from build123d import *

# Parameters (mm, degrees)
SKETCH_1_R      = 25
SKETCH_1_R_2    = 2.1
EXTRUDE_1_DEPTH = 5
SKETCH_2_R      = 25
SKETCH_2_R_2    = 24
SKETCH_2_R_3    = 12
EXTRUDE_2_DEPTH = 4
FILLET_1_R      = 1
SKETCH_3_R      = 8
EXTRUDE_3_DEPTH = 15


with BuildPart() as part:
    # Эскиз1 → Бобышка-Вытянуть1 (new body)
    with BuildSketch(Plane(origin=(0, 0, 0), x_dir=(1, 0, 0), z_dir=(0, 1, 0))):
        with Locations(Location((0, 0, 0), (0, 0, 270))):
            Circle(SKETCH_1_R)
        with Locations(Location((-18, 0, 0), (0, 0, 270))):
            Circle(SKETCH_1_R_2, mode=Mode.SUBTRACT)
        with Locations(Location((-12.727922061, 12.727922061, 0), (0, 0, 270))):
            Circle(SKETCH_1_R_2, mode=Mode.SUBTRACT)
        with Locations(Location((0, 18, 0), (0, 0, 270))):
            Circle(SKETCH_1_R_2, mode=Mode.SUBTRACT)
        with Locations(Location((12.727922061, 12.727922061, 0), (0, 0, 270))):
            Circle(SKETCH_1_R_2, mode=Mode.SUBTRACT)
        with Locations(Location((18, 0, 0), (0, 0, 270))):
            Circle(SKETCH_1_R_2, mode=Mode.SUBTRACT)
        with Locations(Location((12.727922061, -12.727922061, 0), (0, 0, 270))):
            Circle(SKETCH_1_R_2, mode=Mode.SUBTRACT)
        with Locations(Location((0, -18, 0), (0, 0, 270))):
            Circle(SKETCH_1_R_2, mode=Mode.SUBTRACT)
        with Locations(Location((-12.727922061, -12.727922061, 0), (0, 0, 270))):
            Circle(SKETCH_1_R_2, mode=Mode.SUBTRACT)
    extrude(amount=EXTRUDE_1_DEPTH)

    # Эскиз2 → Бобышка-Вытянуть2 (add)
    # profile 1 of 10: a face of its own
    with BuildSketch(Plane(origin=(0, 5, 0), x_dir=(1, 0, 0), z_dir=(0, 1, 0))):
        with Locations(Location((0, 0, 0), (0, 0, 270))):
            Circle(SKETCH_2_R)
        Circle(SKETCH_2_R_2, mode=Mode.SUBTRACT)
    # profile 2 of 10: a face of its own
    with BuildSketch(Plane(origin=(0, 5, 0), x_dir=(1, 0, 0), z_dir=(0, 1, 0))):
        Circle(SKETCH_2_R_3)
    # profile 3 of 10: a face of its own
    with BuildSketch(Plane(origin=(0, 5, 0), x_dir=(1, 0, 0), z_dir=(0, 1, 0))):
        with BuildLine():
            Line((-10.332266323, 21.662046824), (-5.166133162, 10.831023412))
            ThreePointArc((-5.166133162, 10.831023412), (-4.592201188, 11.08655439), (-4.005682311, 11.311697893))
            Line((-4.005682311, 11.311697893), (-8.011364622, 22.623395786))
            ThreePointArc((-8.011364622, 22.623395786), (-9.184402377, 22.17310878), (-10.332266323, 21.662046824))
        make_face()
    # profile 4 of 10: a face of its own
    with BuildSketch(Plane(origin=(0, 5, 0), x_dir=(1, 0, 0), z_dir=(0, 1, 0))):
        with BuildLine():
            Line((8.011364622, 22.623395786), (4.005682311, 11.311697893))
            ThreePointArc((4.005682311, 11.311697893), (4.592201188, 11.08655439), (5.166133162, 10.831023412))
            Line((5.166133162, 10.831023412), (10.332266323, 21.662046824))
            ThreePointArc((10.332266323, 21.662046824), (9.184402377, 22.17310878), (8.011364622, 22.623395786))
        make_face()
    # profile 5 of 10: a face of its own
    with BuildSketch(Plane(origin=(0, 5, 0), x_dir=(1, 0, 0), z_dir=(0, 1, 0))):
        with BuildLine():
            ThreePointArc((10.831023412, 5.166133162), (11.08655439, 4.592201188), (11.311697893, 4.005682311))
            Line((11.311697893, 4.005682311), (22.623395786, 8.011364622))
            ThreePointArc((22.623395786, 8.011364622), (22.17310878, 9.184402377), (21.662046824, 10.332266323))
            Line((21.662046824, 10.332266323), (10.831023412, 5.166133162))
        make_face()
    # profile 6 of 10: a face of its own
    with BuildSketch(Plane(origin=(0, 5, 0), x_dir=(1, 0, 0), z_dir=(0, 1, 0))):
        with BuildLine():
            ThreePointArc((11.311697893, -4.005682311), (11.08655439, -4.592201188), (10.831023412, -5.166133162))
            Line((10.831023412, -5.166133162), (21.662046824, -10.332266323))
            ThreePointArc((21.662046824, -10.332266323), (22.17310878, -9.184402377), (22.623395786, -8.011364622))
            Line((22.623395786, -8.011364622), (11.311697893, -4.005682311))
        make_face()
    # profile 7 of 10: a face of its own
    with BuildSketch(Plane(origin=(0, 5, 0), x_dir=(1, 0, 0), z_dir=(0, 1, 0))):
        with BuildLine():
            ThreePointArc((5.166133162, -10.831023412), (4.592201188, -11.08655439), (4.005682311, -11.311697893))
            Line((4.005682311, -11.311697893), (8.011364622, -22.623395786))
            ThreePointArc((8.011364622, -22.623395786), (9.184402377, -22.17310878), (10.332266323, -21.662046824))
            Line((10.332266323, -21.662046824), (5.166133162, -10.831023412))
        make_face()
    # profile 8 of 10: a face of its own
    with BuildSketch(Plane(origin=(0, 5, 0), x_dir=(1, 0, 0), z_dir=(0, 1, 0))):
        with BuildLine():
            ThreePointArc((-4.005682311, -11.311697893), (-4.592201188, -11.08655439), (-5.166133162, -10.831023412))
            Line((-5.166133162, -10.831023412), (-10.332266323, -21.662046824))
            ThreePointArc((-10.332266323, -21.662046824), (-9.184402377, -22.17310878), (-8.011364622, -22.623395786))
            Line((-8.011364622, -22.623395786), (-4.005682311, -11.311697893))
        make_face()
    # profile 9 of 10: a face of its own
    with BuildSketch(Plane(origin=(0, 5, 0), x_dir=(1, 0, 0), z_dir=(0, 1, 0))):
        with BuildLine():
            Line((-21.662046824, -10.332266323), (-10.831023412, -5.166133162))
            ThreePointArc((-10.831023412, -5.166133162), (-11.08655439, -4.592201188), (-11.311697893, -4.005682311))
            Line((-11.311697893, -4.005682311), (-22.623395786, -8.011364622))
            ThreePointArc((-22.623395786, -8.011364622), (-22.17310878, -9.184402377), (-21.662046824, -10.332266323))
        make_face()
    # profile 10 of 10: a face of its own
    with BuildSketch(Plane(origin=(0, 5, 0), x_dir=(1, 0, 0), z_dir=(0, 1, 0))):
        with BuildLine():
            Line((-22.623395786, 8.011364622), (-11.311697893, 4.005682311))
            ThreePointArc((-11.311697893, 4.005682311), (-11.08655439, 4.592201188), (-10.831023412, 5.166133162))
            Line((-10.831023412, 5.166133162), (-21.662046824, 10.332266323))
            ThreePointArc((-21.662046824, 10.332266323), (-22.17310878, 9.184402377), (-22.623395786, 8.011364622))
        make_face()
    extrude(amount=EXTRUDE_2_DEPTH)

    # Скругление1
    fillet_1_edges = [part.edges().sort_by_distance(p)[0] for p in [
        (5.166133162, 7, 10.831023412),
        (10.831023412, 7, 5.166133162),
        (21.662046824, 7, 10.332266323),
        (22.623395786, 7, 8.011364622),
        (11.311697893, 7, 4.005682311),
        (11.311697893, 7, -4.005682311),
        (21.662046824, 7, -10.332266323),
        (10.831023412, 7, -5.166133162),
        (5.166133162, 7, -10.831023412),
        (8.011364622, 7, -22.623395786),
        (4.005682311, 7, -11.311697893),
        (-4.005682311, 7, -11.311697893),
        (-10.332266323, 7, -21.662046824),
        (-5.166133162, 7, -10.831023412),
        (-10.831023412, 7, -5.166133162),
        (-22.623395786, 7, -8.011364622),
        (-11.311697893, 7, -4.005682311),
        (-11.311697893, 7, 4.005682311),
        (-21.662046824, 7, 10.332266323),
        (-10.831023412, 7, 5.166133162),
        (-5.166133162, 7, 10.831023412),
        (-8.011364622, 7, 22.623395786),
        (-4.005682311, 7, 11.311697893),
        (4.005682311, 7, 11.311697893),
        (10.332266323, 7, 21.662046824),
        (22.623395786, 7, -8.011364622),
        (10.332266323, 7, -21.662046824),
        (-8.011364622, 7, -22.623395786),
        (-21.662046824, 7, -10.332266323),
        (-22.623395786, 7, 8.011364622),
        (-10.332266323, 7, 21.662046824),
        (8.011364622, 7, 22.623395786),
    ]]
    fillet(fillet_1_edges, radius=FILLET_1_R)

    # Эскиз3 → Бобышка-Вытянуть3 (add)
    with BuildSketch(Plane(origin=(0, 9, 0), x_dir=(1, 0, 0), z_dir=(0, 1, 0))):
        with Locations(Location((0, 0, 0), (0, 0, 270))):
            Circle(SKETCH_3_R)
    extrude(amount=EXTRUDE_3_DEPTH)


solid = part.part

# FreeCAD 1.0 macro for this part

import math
import FreeCAD as App
import Part
import Sketcher
Q = App.Units.Quantity


def edges_at(feature, points):
    """Names of the edges that pass closest to the given points."""
    edges = feature.Shape.Edges
    near = lambda p: min(range(len(edges)), key=lambda i: edges[i].distToShape(Part.Vertex(*p))[0])
    return sorted({f"Edge{near(p) + 1}" for p in points})

doc = App.newDocument("Part")
body = doc.addObject("PartDesign::Body", "Body")

sketch1 = doc.addObject("Sketcher::SketchObject", "Sketch")
body.addObject(sketch1)
sketch1.AttachmentSupport = (doc.XZ_Plane, [""])
sketch1.MapMode = "FlatFace"
sketch1.addGeometry(Part.Circle(App.Vector(0, 0, 0), App.Vector(0, 0, 1), 25), False)
sketch1.addGeometry(Part.Circle(App.Vector(-12.727922, -12.727922, 0), App.Vector(0, 0, 1), 2.1), False)
sketch1.addGeometry(Part.Circle(App.Vector(0, -18, 0), App.Vector(0, 0, 1), 2.1), False)
sketch1.addGeometry(Part.Circle(App.Vector(-18, 0, 0), App.Vector(0, 0, 1), 2.1), False)
sketch1.addGeometry(Part.Circle(App.Vector(-12.727922, 12.727922, 0), App.Vector(0, 0, 1), 2.1), False)
sketch1.addGeometry(Part.Circle(App.Vector(12.727922, -12.727922, 0), App.Vector(0, 0, 1), 2.1), False)
sketch1.addGeometry(Part.Circle(App.Vector(18, 0, 0), App.Vector(0, 0, 1), 2.1), False)
sketch1.addGeometry(Part.Circle(App.Vector(0, 18, 0), App.Vector(0, 0, 1), 2.1), False)
sketch1.addGeometry(Part.Circle(App.Vector(12.727922, 12.727922, 0), App.Vector(0, 0, 1), 2.1), False)
sketch1.addConstraint(Sketcher.Constraint("Coincident", 0, 3, -1, 1))
sketch1.addConstraint(Sketcher.Constraint("Equal", 1, 2))
sketch1.addConstraint(Sketcher.Constraint("Equal", 2, 3))
sketch1.addConstraint(Sketcher.Constraint("Equal", 3, 4))
sketch1.addConstraint(Sketcher.Constraint("Equal", 4, 5))
sketch1.addConstraint(Sketcher.Constraint("Equal", 5, 6))
sketch1.addConstraint(Sketcher.Constraint("Equal", 6, 7))
sketch1.addConstraint(Sketcher.Constraint("Equal", 7, 8))
sketch1.addConstraint(Sketcher.Constraint("Symmetric", 4, 3, 5, 3, -1, 1))
sketch1.addConstraint(Sketcher.Constraint("Symmetric", 3, 3, 6, 3, -1, 1))
sketch1.addConstraint(Sketcher.Constraint("Symmetric", 2, 3, 7, 3, -1, 1))
sketch1.addConstraint(Sketcher.Constraint("Symmetric", 1, 3, 8, 3, -1, 1))
sketch1.addConstraint(Sketcher.Constraint("Symmetric", 1, 3, 5, 3, -2))
sketch1.addConstraint(Sketcher.Constraint("PointOnObject", 2, 3, -2))
sketch1.addConstraint(Sketcher.Constraint("PointOnObject", 3, 3, -1))
sketch1.addConstraint(Sketcher.Constraint("Diameter", 0, Q("50 mm")))
sketch1.addConstraint(Sketcher.Constraint("Diameter", 1, Q("4.2 mm")))
sketch1.addConstraint(Sketcher.Constraint("DistanceY", 2, 3, -1, 1, Q("18 mm")))
sketch1.addConstraint(Sketcher.Constraint("DistanceX", 3, 3, -1, 1, Q("18 mm")))
sketch1.addConstraint(Sketcher.Constraint("DistanceX", 1, 3, -1, 1, Q("12.727922 mm")))
sketch1.addConstraint(Sketcher.Constraint("DistanceY", 1, 3, -1, 1, Q("12.727922 mm")))
pad1 = doc.addObject("PartDesign::Pad", "Pad")
body.addObject(pad1)
pad1.Profile = sketch1
pad1.Length = 5
pad1.Reversed = True

sketch2 = doc.addObject("Sketcher::SketchObject", "Sketch001")
body.addObject(sketch2)
sketch2.AttachmentSupport = (doc.XZ_Plane, [""])
sketch2.MapMode = "FlatFace"
sketch2.AttachmentOffset = App.Placement(App.Vector(0, 0, -5), App.Rotation())
sketch2.addGeometry(Part.Circle(App.Vector(0, 0, 0), App.Vector(0, 0, 1), 25), False)
sketch2.addGeometry(Part.ArcOfCircle(Part.Circle(App.Vector(0, 0, 0), App.Vector(0, 0, 1), 24), math.radians(-19.5), math.radians(19.5)), False)
sketch2.addGeometry(Part.LineSegment(App.Vector(22.623396, 8.011365, 0), App.Vector(11.311698, 4.005682, 0)), False)
sketch2.addGeometry(Part.ArcOfCircle(Part.Circle(App.Vector(0, 0, 0), App.Vector(0, 0, 1), 12), math.radians(-19.5), math.radians(19.5)), False)
sketch2.addGeometry(Part.LineSegment(App.Vector(11.311698, -4.005682, 0), App.Vector(22.623396, -8.011365, 0)), False)
sketch2.addGeometry(Part.ArcOfCircle(Part.Circle(App.Vector(0, 0, 0), App.Vector(0, 0, 1), 24), math.radians(-64.5), math.radians(-25.5)), False)
sketch2.addGeometry(Part.LineSegment(App.Vector(21.662047, -10.332266, 0), App.Vector(10.831023, -5.166133, 0)), False)
sketch2.addGeometry(Part.ArcOfCircle(Part.Circle(App.Vector(0, 0, 0), App.Vector(0, 0, 1), 12), math.radians(-64.5), math.radians(-25.5)), False)
sketch2.addGeometry(Part.LineSegment(App.Vector(5.166133, -10.831023, 0), App.Vector(10.332266, -21.662047, 0)), False)
sketch2.addGeometry(Part.ArcOfCircle(Part.Circle(App.Vector(0, 0, 0), App.Vector(0, 0, 1), 24), math.radians(-109.5), math.radians(-70.5)), False)
sketch2.addGeometry(Part.LineSegment(App.Vector(8.011365, -22.623396, 0), App.Vector(4.005682, -11.311698, 0)), False)
sketch2.addGeometry(Part.ArcOfCircle(Part.Circle(App.Vector(0, 0, 0), App.Vector(0, 0, 1), 12), math.radians(-109.5), math.radians(-70.5)), False)
sketch2.addGeometry(Part.LineSegment(App.Vector(-4.005682, -11.311698, 0), App.Vector(-8.011365, -22.623396, 0)), False)
sketch2.addGeometry(Part.ArcOfCircle(Part.Circle(App.Vector(0, 0, 0), App.Vector(0, 0, 1), 24), math.radians(-154.5), math.radians(-115.5)), False)
sketch2.addGeometry(Part.LineSegment(App.Vector(-10.332266, -21.662047, 0), App.Vector(-5.166133, -10.831023, 0)), False)
sketch2.addGeometry(Part.ArcOfCircle(Part.Circle(App.Vector(0, 0, 0), App.Vector(0, 0, 1), 12), math.radians(-154.5), math.radians(-115.5)), False)
sketch2.addGeometry(Part.LineSegment(App.Vector(-10.831023, -5.166133, 0), App.Vector(-21.662047, -10.332266, 0)), False)
sketch2.addGeometry(Part.ArcOfCircle(Part.Circle(App.Vector(0, 0, 0), App.Vector(0, 0, 1), 24), math.radians(160.5), math.radians(199.5)), False)
sketch2.addGeometry(Part.LineSegment(App.Vector(-22.623396, -8.011365, 0), App.Vector(-11.311698, -4.005682, 0)), False)
sketch2.addGeometry(Part.ArcOfCircle(Part.Circle(App.Vector(0, 0, 0), App.Vector(0, 0, 1), 12), math.radians(160.5), math.radians(199.5)), False)
sketch2.addGeometry(Part.LineSegment(App.Vector(-11.311698, 4.005682, 0), App.Vector(-22.623396, 8.011365, 0)), False)
sketch2.addGeometry(Part.ArcOfCircle(Part.Circle(App.Vector(0, 0, 0), App.Vector(0, 0, 1), 24), math.radians(115.5), math.radians(154.5)), False)
sketch2.addGeometry(Part.LineSegment(App.Vector(-21.662047, 10.332266, 0), App.Vector(-10.831023, 5.166133, 0)), False)
sketch2.addGeometry(Part.ArcOfCircle(Part.Circle(App.Vector(0, 0, 0), App.Vector(0, 0, 1), 12), math.radians(115.5), math.radians(154.5)), False)
sketch2.addGeometry(Part.LineSegment(App.Vector(-5.166133, 10.831023, 0), App.Vector(-10.332266, 21.662047, 0)), False)
sketch2.addGeometry(Part.ArcOfCircle(Part.Circle(App.Vector(0, 0, 0), App.Vector(0, 0, 1), 24), math.radians(70.5), math.radians(109.5)), False)
sketch2.addGeometry(Part.LineSegment(App.Vector(-8.011365, 22.623396, 0), App.Vector(-4.005682, 11.311698, 0)), False)
sketch2.addGeometry(Part.ArcOfCircle(Part.Circle(App.Vector(0, 0, 0), App.Vector(0, 0, 1), 12), math.radians(70.5), math.radians(109.5)), False)
sketch2.addGeometry(Part.LineSegment(App.Vector(4.005682, 11.311698, 0), App.Vector(8.011365, 22.623396, 0)), False)
sketch2.addGeometry(Part.ArcOfCircle(Part.Circle(App.Vector(0, 0, 0), App.Vector(0, 0, 1), 24), math.radians(25.5), math.radians(64.5)), False)
sketch2.addGeometry(Part.LineSegment(App.Vector(10.332266, 21.662047, 0), App.Vector(5.166133, 10.831023, 0)), False)
sketch2.addGeometry(Part.ArcOfCircle(Part.Circle(App.Vector(0, 0, 0), App.Vector(0, 0, 1), 12), math.radians(25.5), math.radians(64.5)), False)
sketch2.addGeometry(Part.LineSegment(App.Vector(10.831023, 5.166133, 0), App.Vector(21.662047, 10.332266, 0)), False)
sketch2.addConstraint(Sketcher.Constraint("Coincident", 1, 2, 2, 1))
sketch2.addConstraint(Sketcher.Constraint("Coincident", 2, 2, 3, 2))
sketch2.addConstraint(Sketcher.Constraint("Coincident", 3, 1, 4, 1))
sketch2.addConstraint(Sketcher.Constraint("Coincident", 4, 2, 1, 1))
sketch2.addConstraint(Sketcher.Constraint("Coincident", 5, 2, 6, 1))
sketch2.addConstraint(Sketcher.Constraint("Coincident", 6, 2, 7, 2))
sketch2.addConstraint(Sketcher.Constraint("Coincident", 7, 1, 8, 1))
sketch2.addConstraint(Sketcher.Constraint("Coincident", 8, 2, 5, 1))
sketch2.addConstraint(Sketcher.Constraint("Coincident", 9, 2, 10, 1))
sketch2.addConstraint(Sketcher.Constraint("Coincident", 10, 2, 11, 2))
sketch2.addConstraint(Sketcher.Constraint("Coincident", 11, 1, 12, 1))
sketch2.addConstraint(Sketcher.Constraint("Coincident", 12, 2, 9, 1))
sketch2.addConstraint(Sketcher.Constraint("Coincident", 13, 2, 14, 1))
sketch2.addConstraint(Sketcher.Constraint("Coincident", 14, 2, 15, 2))
sketch2.addConstraint(Sketcher.Constraint("Coincident", 15, 1, 16, 1))
sketch2.addConstraint(Sketcher.Constraint("Coincident", 16, 2, 13, 1))
sketch2.addConstraint(Sketcher.Constraint("Coincident", 17, 2, 18, 1))
sketch2.addConstraint(Sketcher.Constraint("Coincident", 18, 2, 19, 2))
sketch2.addConstraint(Sketcher.Constraint("Coincident", 19, 1, 20, 1))
sketch2.addConstraint(Sketcher.Constraint("Coincident", 20, 2, 17, 1))
sketch2.addConstraint(Sketcher.Constraint("Coincident", 21, 2, 22, 1))
sketch2.addConstraint(Sketcher.Constraint("Coincident", 22, 2, 23, 2))
sketch2.addConstraint(Sketcher.Constraint("Coincident", 23, 1, 24, 1))
sketch2.addConstraint(Sketcher.Constraint("Coincident", 24, 2, 21, 1))
sketch2.addConstraint(Sketcher.Constraint("Coincident", 25, 2, 26, 1))
sketch2.addConstraint(Sketcher.Constraint("Coincident", 26, 2, 27, 2))
sketch2.addConstraint(Sketcher.Constraint("Coincident", 27, 1, 28, 1))
sketch2.addConstraint(Sketcher.Constraint("Coincident", 28, 2, 25, 1))
sketch2.addConstraint(Sketcher.Constraint("Coincident", 29, 2, 30, 1))
sketch2.addConstraint(Sketcher.Constraint("Coincident", 30, 2, 31, 2))
sketch2.addConstraint(Sketcher.Constraint("Coincident", 31, 1, 32, 1))
sketch2.addConstraint(Sketcher.Constraint("Coincident", 32, 2, 29, 1))
sketch2.addConstraint(Sketcher.Constraint("Coincident", 0, 3, -1, 1))
sketch2.addConstraint(Sketcher.Constraint("Coincident", 1, 3, -1, 1))
sketch2.addConstraint(Sketcher.Constraint("Coincident", 3, 3, -1, 1))
sketch2.addConstraint(Sketcher.Constraint("Coincident", 5, 3, -1, 1))
sketch2.addConstraint(Sketcher.Constraint("Coincident", 7, 3, -1, 1))
sketch2.addConstraint(Sketcher.Constraint("Coincident", 9, 3, -1, 1))
sketch2.addConstraint(Sketcher.Constraint("Coincident", 11, 3, -1, 1))
sketch2.addConstraint(Sketcher.Constraint("Coincident", 13, 3, -1, 1))
sketch2.addConstraint(Sketcher.Constraint("Coincident", 15, 3, -1, 1))
sketch2.addConstraint(Sketcher.Constraint("Coincident", 17, 3, -1, 1))
sketch2.addConstraint(Sketcher.Constraint("Coincident", 19, 3, -1, 1))
sketch2.addConstraint(Sketcher.Constraint("Coincident", 21, 3, -1, 1))
sketch2.addConstraint(Sketcher.Constraint("Coincident", 23, 3, -1, 1))
sketch2.addConstraint(Sketcher.Constraint("Coincident", 25, 3, -1, 1))
sketch2.addConstraint(Sketcher.Constraint("Coincident", 27, 3, -1, 1))
sketch2.addConstraint(Sketcher.Constraint("Coincident", 29, 3, -1, 1))
sketch2.addConstraint(Sketcher.Constraint("Coincident", 31, 3, -1, 1))
sketch2.addConstraint(Sketcher.Constraint("Equal", 1, 5))
sketch2.addConstraint(Sketcher.Constraint("Equal", 3, 7))
sketch2.addConstraint(Sketcher.Constraint("Equal", 5, 9))
sketch2.addConstraint(Sketcher.Constraint("Equal", 7, 11))
sketch2.addConstraint(Sketcher.Constraint("Equal", 9, 13))
sketch2.addConstraint(Sketcher.Constraint("Equal", 11, 15))
sketch2.addConstraint(Sketcher.Constraint("Equal", 13, 17))
sketch2.addConstraint(Sketcher.Constraint("Equal", 15, 19))
sketch2.addConstraint(Sketcher.Constraint("Equal", 17, 21))
sketch2.addConstraint(Sketcher.Constraint("Equal", 19, 23))
sketch2.addConstraint(Sketcher.Constraint("Equal", 21, 25))
sketch2.addConstraint(Sketcher.Constraint("Equal", 23, 27))
sketch2.addConstraint(Sketcher.Constraint("Equal", 25, 29))
sketch2.addConstraint(Sketcher.Constraint("Equal", 27, 31))
sketch2.addConstraint(Sketcher.Constraint("Perpendicular", 2, 10))
sketch2.addConstraint(Sketcher.Constraint("Perpendicular", 4, 12))
sketch2.addConstraint(Sketcher.Constraint("Perpendicular", 6, 14))
sketch2.addConstraint(Sketcher.Constraint("Perpendicular", 8, 16))
sketch2.addConstraint(Sketcher.Constraint("Perpendicular", 10, 18))
sketch2.addConstraint(Sketcher.Constraint("Perpendicular", 12, 20))
sketch2.addConstraint(Sketcher.Constraint("Perpendicular", 14, 22))
sketch2.addConstraint(Sketcher.Constraint("Perpendicular", 16, 24))
sketch2.addConstraint(Sketcher.Constraint("Perpendicular", 18, 26))
sketch2.addConstraint(Sketcher.Constraint("Perpendicular", 20, 28))
sketch2.addConstraint(Sketcher.Constraint("Perpendicular", 22, 30))
sketch2.addConstraint(Sketcher.Constraint("Perpendicular", 24, 32))
sketch2.addConstraint(Sketcher.Constraint("Horizontal", 10, 2, 11, 1))
sketch2.addConstraint(Sketcher.Constraint("Horizontal", 9, 2, 12, 2))
sketch2.addConstraint(Sketcher.Constraint("Horizontal", 8, 2, 13, 2))
sketch2.addConstraint(Sketcher.Constraint("Horizontal", 7, 1, 14, 2))
sketch2.addConstraint(Sketcher.Constraint("Horizontal", 6, 2, 15, 1))
sketch2.addConstraint(Sketcher.Constraint("Horizontal", 4, 2, 17, 2))
sketch2.addConstraint(Sketcher.Constraint("Horizontal", 2, 2, 19, 1))
sketch2.addConstraint(Sketcher.Constraint("Horizontal", 26, 2, 27, 1))
sketch2.addConstraint(Sketcher.Constraint("Horizontal", 24, 2, 29, 2))
sketch2.addConstraint(Sketcher.Constraint("Horizontal", 22, 2, 31, 1))
sketch2.addConstraint(Sketcher.Constraint("Vertical", 2, 2, 3, 1))
sketch2.addConstraint(Sketcher.Constraint("Vertical", 16, 2, 21, 2))
sketch2.addConstraint(Sketcher.Constraint("Vertical", 14, 2, 23, 1))
sketch2.addConstraint(Sketcher.Constraint("Vertical", 12, 2, 25, 2))
sketch2.addConstraint(Sketcher.Constraint("Diameter", 0, Q("50 mm")))
sketch2.addConstraint(Sketcher.Constraint("Radius", 1, Q("24 mm")))
sketch2.addConstraint(Sketcher.Constraint("Radius", 3, Q("12 mm")))
sketch2.addConstraint(Sketcher.Constraint("Angle", 2, Q("-160.5 deg")))
sketch2.addConstraint(Sketcher.Constraint("Angle", 6, Q("154.5 deg")))
sketch2.addConstraint(Sketcher.Constraint("DistanceY", 5, 2, 4, 2, Q("2.320902 mm")))
sketch2.addConstraint(Sketcher.Constraint("DistanceX", 9, 2, 8, 2, Q("2.320902 mm")))
sketch2.addConstraint(Sketcher.Constraint("DistanceX", 13, 2, 7, 1, Q("15.498399 mm")))
sketch2.addConstraint(Sketcher.Constraint("DistanceY", 15, 1, 21, 2, Q("15.498399 mm")))
pad2 = doc.addObject("PartDesign::Pad", "Pad001")
body.addObject(pad2)
pad2.Profile = sketch2
pad2.Length = 4
pad2.Reversed = True
doc.recompute()

fillet = doc.addObject("PartDesign::Fillet", "Fillet")
body.addObject(fillet)
fillet.Base = (pad2, edges_at(pad2, [
    (5.166, 7, 10.831),
    (10.831, 7, 5.166),
    (21.662, 7, 10.332),
    (22.623, 7, 8.011),
    (11.312, 7, 4.006),
    (11.312, 7, -4.006),
    (21.662, 7, -10.332),
    (10.831, 7, -5.166),
    (5.166, 7, -10.831),
    (8.011, 7, -22.623),
    (4.006, 7, -11.312),
    (-4.006, 7, -11.312),
    (-10.332, 7, -21.662),
    (-5.166, 7, -10.831),
    (-10.831, 7, -5.166),
    (-22.623, 7, -8.011),
    (-11.312, 7, -4.006),
    (-11.312, 7, 4.006),
    (-21.662, 7, 10.332),
    (-10.831, 7, 5.166),
    (-5.166, 7, 10.831),
    (-8.011, 7, 22.623),
    (-4.006, 7, 11.312),
    (4.006, 7, 11.312),
    (10.332, 7, 21.662),
    (22.623, 7, -8.011),
    (10.332, 7, -21.662),
    (-8.011, 7, -22.623),
    (-21.662, 7, -10.332),
    (-22.623, 7, 8.011),
    (-10.332, 7, 21.662),
    (8.011, 7, 22.623),
]))
fillet.Radius = 1

sketch3 = doc.addObject("Sketcher::SketchObject", "Sketch002")
body.addObject(sketch3)
sketch3.AttachmentSupport = (doc.XZ_Plane, [""])
sketch3.MapMode = "FlatFace"
sketch3.AttachmentOffset = App.Placement(App.Vector(0, 0, -9), App.Rotation())
sketch3.addGeometry(Part.Circle(App.Vector(0, 0, 0), App.Vector(0, 0, 1), 8), False)
sketch3.addConstraint(Sketcher.Constraint("Coincident", 0, 3, -1, 1))
sketch3.addConstraint(Sketcher.Constraint("Diameter", 0, Q("16 mm")))
pad3 = doc.addObject("PartDesign::Pad", "Pad002")
body.addObject(pad3)
pad3.Profile = sketch3
pad3.Length = 15
pad3.Reversed = True

doc.recompute()
